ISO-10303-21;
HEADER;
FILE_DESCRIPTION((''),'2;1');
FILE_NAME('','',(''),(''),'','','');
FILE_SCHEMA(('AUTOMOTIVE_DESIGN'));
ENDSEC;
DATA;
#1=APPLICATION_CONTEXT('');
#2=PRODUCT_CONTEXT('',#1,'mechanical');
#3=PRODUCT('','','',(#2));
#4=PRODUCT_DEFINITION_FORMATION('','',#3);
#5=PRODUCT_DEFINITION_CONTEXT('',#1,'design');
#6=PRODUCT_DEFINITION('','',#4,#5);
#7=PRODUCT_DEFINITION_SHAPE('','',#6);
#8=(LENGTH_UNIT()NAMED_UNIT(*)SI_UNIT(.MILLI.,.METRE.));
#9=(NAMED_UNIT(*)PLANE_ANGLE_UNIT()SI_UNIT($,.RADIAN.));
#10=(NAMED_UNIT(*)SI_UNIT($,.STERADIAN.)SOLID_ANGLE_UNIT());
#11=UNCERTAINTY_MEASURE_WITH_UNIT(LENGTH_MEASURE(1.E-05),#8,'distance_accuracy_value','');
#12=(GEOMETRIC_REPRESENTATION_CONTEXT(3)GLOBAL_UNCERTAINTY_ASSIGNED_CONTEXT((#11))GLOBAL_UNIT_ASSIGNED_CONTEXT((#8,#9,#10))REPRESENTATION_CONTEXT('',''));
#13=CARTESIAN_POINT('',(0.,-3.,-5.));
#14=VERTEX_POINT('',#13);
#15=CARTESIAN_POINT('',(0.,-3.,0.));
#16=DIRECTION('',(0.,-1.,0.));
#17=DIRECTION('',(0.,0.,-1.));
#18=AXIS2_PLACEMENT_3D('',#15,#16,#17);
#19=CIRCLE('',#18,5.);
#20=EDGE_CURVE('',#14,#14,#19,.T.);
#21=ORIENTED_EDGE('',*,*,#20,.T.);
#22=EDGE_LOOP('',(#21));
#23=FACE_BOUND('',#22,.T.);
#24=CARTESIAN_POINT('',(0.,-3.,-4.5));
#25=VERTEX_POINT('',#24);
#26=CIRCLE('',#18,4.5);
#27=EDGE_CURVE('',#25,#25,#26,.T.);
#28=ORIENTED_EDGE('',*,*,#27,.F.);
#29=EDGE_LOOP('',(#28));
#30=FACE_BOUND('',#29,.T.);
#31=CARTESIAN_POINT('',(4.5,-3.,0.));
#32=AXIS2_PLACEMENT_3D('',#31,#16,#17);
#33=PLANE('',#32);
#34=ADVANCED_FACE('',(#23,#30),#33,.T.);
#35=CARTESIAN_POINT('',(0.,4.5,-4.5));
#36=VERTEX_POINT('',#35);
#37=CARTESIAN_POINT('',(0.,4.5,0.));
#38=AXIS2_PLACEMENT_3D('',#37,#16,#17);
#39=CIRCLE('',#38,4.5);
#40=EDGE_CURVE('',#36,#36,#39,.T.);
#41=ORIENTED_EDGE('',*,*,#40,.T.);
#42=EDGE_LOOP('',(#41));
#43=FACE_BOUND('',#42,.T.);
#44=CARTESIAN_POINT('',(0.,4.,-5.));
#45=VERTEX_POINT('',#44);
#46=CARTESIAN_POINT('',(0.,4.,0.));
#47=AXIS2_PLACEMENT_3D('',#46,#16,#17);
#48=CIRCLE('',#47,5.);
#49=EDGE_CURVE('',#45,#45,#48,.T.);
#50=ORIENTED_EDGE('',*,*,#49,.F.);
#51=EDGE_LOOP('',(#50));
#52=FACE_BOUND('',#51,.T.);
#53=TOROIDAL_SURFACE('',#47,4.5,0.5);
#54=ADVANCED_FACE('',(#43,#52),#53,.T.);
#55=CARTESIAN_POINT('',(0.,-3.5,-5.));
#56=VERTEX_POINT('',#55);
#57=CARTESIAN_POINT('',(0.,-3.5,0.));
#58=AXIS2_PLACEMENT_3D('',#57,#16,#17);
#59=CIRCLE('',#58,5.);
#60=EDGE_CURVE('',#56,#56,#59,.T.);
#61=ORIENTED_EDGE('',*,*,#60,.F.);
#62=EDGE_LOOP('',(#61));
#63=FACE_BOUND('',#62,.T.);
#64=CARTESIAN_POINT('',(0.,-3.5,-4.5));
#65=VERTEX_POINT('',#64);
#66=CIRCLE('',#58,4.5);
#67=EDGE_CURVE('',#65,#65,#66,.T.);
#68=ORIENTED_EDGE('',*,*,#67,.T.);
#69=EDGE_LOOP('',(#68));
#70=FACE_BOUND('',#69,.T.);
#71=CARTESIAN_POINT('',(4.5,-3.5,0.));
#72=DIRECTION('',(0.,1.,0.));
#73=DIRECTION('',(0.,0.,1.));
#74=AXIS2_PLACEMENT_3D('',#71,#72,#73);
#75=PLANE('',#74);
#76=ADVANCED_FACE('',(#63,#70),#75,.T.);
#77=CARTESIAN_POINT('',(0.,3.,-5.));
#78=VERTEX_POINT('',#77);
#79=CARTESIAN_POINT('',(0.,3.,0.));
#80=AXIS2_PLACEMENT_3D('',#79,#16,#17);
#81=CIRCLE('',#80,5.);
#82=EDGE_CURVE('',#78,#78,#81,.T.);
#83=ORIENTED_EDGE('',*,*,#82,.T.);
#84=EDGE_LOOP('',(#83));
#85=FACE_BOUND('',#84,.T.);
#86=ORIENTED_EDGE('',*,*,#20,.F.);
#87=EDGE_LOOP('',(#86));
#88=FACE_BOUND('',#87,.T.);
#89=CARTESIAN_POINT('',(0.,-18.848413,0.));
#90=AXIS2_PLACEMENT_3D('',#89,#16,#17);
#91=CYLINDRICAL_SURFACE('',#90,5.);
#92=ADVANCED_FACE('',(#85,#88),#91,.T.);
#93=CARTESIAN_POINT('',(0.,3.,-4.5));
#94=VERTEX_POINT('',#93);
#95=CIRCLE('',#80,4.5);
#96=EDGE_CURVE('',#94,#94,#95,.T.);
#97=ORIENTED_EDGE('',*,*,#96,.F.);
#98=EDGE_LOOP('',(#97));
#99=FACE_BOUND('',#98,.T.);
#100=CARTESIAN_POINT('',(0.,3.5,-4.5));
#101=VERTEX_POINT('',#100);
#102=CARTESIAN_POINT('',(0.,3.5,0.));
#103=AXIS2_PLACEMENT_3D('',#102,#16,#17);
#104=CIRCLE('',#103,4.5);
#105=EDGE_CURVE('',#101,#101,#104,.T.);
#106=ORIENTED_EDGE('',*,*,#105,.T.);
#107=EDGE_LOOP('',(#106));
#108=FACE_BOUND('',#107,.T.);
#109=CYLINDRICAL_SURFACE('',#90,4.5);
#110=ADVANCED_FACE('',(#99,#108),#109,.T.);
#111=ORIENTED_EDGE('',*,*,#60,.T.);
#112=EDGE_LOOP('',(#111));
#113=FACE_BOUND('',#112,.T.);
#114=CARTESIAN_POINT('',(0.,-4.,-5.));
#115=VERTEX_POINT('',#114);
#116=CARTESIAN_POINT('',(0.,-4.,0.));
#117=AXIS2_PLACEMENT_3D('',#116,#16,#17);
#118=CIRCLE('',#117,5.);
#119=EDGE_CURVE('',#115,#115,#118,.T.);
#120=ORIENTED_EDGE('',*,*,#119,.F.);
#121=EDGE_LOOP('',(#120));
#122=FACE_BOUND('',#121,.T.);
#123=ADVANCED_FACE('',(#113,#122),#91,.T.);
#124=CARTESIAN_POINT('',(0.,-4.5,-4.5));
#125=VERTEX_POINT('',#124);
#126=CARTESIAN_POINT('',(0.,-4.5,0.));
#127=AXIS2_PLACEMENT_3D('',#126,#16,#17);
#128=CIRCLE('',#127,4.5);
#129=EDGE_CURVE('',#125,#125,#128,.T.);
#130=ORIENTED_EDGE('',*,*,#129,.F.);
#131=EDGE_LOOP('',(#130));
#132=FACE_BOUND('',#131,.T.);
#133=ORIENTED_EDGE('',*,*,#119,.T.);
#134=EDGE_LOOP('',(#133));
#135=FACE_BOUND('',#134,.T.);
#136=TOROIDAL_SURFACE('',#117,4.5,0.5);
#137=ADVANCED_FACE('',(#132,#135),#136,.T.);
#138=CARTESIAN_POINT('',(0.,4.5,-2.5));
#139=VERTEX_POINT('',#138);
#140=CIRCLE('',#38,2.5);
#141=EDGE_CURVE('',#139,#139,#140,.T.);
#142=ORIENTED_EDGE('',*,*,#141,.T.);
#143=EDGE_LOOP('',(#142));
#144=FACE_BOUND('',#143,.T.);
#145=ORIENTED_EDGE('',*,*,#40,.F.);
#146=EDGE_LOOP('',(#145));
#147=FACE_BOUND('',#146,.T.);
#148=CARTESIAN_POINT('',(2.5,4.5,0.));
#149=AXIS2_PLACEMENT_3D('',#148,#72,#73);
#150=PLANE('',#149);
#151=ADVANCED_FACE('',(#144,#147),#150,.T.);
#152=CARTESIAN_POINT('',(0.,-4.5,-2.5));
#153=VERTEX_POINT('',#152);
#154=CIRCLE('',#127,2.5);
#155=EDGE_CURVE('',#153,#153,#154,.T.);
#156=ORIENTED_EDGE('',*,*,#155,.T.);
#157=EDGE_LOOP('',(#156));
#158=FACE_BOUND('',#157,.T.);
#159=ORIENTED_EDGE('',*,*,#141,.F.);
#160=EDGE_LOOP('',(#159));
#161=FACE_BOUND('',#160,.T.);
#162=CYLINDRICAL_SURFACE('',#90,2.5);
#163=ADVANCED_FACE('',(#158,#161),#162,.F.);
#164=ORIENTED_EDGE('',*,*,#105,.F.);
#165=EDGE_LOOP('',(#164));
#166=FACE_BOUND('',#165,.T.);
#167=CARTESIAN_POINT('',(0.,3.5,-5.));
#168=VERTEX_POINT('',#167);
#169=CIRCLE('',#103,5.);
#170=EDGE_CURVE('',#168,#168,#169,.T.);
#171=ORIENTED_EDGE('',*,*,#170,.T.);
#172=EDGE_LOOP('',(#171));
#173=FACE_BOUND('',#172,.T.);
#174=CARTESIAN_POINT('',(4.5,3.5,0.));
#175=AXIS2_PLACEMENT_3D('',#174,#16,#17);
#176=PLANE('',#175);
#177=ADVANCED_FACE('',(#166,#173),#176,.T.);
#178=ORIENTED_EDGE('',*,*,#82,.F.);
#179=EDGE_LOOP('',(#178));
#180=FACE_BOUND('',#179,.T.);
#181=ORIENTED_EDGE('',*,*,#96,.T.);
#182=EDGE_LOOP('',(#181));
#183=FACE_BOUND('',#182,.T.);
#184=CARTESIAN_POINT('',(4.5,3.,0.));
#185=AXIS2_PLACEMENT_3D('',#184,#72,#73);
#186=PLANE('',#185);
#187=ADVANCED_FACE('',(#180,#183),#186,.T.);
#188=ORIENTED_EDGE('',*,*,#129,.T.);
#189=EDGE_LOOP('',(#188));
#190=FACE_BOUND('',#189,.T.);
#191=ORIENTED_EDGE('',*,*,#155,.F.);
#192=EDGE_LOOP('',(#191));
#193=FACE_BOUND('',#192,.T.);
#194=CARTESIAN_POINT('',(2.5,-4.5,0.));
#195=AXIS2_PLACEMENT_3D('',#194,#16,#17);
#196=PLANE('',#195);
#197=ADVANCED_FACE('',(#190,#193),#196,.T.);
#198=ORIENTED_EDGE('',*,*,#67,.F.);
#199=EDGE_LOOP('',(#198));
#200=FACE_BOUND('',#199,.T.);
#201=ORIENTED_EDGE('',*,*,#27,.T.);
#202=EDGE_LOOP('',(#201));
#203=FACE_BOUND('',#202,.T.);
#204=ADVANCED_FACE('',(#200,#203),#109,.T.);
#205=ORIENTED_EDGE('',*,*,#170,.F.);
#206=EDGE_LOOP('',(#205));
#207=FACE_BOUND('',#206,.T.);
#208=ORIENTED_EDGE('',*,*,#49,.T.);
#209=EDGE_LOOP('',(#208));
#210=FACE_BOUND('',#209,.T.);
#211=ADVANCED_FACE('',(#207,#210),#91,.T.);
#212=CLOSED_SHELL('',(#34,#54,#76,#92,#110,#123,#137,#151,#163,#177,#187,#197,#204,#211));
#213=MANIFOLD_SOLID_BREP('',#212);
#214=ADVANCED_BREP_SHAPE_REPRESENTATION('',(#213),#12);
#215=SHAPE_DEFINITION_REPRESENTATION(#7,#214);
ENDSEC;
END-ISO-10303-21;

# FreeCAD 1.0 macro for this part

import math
import FreeCAD as App
import Part
import Sketcher
from FreeCAD import Vector

doc = App.newDocument("Part")
body = doc.addObject("PartDesign::Body", "Body")

sketch1 = body.newObject("Sketcher::SketchObject", "Sketch")
sketch1.AttachmentSupport = (doc.getObject("XY_Plane"), [""])
sketch1.MapMode = "FlatFace"
sketch1.addGeometry(Part.LineSegment(Vector(5, -3, 0), Vector(5, 3, 0)), False)
sketch1.addGeometry(Part.LineSegment(Vector(5, 3, 0), Vector(4.5, 3, 0)), False)
sketch1.addGeometry(Part.LineSegment(Vector(4.5, 3, 0), Vector(4.5, 3.5, 0)), False)
sketch1.addGeometry(Part.LineSegment(Vector(4.5, 3.5, 0), Vector(5, 3.5, 0)), False)
sketch1.addGeometry(Part.LineSegment(Vector(5, 3.5, 0), Vector(5, 4, 0)), False)
sketch1.addGeometry(Part.ArcOfCircle(Part.Circle(Vector(4.5, 4, 0), Vector(0, 0, 1), 0.5), math.radians(0), math.radians(90)), False)
sketch1.addGeometry(Part.LineSegment(Vector(4.5, 4.5, 0), Vector(2.5, 4.5, 0)), False)
sketch1.addGeometry(Part.LineSegment(Vector(2.5, 4.5, 0), Vector(2.5, -4.5, 0)), False)
sketch1.addGeometry(Part.LineSegment(Vector(2.5, -4.5, 0), Vector(4.5, -4.5, 0)), False)
sketch1.addGeometry(Part.ArcOfCircle(Part.Circle(Vector(4.5, -4, 0), Vector(0, 0, 1), 0.5), math.radians(-90), math.radians(0)), False)
sketch1.addGeometry(Part.LineSegment(Vector(5, -4, 0), Vector(5, -3.5, 0)), False)
sketch1.addGeometry(Part.LineSegment(Vector(5, -3.5, 0), Vector(4.5, -3.5, 0)), False)
sketch1.addGeometry(Part.LineSegment(Vector(4.5, -3.5, 0), Vector(4.5, -3, 0)), False)
sketch1.addGeometry(Part.LineSegment(Vector(4.5, -3, 0), Vector(5, -3, 0)), False)
sketch1.addConstraint(Sketcher.Constraint("Coincident", 0, 2, 1, 1))
sketch1.addConstraint(Sketcher.Constraint("Coincident", 1, 2, 2, 1))
sketch1.addConstraint(Sketcher.Constraint("Coincident", 2, 2, 3, 1))
sketch1.addConstraint(Sketcher.Constraint("Coincident", 3, 2, 4, 1))
sketch1.addConstraint(Sketcher.Constraint("Tangent", 4, 2, 5, 1))
sketch1.addConstraint(Sketcher.Constraint("Tangent", 5, 2, 6, 1))
sketch1.addConstraint(Sketcher.Constraint("Coincident", 6, 2, 7, 1))
sketch1.addConstraint(Sketcher.Constraint("Coincident", 7, 2, 8, 1))
sketch1.addConstraint(Sketcher.Constraint("Tangent", 8, 2, 9, 1))
sketch1.addConstraint(Sketcher.Constraint("Tangent", 9, 2, 10, 1))
sketch1.addConstraint(Sketcher.Constraint("Coincident", 10, 2, 11, 1))
sketch1.addConstraint(Sketcher.Constraint("Coincident", 11, 2, 12, 1))
sketch1.addConstraint(Sketcher.Constraint("Coincident", 12, 2, 13, 1))
sketch1.addConstraint(Sketcher.Constraint("Coincident", 13, 2, 0, 1))
sketch1.addConstraint(Sketcher.Constraint("Vertical", 0))
sketch1.addConstraint(Sketcher.Constraint("Horizontal", 1))
sketch1.addConstraint(Sketcher.Constraint("Vertical", 2))
sketch1.addConstraint(Sketcher.Constraint("Horizontal", 3))
sketch1.addConstraint(Sketcher.Constraint("Vertical", 4))
sketch1.addConstraint(Sketcher.Constraint("Horizontal", 6))
sketch1.addConstraint(Sketcher.Constraint("Vertical", 7))
sketch1.addConstraint(Sketcher.Constraint("Horizontal", 8))
sketch1.addConstraint(Sketcher.Constraint("Vertical", 10))
sketch1.addConstraint(Sketcher.Constraint("Horizontal", 11))
sketch1.addConstraint(Sketcher.Constraint("Vertical", 12))
sketch1.addConstraint(Sketcher.Constraint("Horizontal", 13))
sketch1.addConstraint(Sketcher.Constraint("Equal", 5, 9))
sketch1.addConstraint(Sketcher.Constraint("Symmetric", 5, 3, 9, 3, -1))
sketch1.addConstraint(Sketcher.Constraint("Symmetric", 2, 2, 11, 2, -1))
sketch1.addConstraint(Sketcher.Constraint("Vertical", 9, 3, 1, 2))
sketch1.addConstraint(Sketcher.Constraint("Vertical", 0, 2, 3, 2))
sketch1.addConstraint(Sketcher.Constraint("Equal", 13, 2))
sketch1.addConstraint(Sketcher.Constraint("Equal", 2, 4))
sketch1.addConstraint(Sketcher.Constraint("Equal", 10, 12))
sketch1.addConstraint(Sketcher.Constraint("Radius", 5, 0.5))
sketch1.addConstraint(Sketcher.Constraint("DistanceX", 6, 2, 6, 1, 2.0))
sketch1.addConstraint(Sketcher.Constraint("DistanceY", 0, 1, 0, 2, 6.0))
sketch1.addConstraint(Sketcher.Constraint("DistanceX", -1, 1, 0, 2, 5.0))
revolution = body.newObject("PartDesign::Revolution", "Revolution")
revolution.Profile = sketch1
revolution.ReferenceAxis = (sketch1, ["V_Axis"])
revolution.Angle = 360

doc.recompute()
